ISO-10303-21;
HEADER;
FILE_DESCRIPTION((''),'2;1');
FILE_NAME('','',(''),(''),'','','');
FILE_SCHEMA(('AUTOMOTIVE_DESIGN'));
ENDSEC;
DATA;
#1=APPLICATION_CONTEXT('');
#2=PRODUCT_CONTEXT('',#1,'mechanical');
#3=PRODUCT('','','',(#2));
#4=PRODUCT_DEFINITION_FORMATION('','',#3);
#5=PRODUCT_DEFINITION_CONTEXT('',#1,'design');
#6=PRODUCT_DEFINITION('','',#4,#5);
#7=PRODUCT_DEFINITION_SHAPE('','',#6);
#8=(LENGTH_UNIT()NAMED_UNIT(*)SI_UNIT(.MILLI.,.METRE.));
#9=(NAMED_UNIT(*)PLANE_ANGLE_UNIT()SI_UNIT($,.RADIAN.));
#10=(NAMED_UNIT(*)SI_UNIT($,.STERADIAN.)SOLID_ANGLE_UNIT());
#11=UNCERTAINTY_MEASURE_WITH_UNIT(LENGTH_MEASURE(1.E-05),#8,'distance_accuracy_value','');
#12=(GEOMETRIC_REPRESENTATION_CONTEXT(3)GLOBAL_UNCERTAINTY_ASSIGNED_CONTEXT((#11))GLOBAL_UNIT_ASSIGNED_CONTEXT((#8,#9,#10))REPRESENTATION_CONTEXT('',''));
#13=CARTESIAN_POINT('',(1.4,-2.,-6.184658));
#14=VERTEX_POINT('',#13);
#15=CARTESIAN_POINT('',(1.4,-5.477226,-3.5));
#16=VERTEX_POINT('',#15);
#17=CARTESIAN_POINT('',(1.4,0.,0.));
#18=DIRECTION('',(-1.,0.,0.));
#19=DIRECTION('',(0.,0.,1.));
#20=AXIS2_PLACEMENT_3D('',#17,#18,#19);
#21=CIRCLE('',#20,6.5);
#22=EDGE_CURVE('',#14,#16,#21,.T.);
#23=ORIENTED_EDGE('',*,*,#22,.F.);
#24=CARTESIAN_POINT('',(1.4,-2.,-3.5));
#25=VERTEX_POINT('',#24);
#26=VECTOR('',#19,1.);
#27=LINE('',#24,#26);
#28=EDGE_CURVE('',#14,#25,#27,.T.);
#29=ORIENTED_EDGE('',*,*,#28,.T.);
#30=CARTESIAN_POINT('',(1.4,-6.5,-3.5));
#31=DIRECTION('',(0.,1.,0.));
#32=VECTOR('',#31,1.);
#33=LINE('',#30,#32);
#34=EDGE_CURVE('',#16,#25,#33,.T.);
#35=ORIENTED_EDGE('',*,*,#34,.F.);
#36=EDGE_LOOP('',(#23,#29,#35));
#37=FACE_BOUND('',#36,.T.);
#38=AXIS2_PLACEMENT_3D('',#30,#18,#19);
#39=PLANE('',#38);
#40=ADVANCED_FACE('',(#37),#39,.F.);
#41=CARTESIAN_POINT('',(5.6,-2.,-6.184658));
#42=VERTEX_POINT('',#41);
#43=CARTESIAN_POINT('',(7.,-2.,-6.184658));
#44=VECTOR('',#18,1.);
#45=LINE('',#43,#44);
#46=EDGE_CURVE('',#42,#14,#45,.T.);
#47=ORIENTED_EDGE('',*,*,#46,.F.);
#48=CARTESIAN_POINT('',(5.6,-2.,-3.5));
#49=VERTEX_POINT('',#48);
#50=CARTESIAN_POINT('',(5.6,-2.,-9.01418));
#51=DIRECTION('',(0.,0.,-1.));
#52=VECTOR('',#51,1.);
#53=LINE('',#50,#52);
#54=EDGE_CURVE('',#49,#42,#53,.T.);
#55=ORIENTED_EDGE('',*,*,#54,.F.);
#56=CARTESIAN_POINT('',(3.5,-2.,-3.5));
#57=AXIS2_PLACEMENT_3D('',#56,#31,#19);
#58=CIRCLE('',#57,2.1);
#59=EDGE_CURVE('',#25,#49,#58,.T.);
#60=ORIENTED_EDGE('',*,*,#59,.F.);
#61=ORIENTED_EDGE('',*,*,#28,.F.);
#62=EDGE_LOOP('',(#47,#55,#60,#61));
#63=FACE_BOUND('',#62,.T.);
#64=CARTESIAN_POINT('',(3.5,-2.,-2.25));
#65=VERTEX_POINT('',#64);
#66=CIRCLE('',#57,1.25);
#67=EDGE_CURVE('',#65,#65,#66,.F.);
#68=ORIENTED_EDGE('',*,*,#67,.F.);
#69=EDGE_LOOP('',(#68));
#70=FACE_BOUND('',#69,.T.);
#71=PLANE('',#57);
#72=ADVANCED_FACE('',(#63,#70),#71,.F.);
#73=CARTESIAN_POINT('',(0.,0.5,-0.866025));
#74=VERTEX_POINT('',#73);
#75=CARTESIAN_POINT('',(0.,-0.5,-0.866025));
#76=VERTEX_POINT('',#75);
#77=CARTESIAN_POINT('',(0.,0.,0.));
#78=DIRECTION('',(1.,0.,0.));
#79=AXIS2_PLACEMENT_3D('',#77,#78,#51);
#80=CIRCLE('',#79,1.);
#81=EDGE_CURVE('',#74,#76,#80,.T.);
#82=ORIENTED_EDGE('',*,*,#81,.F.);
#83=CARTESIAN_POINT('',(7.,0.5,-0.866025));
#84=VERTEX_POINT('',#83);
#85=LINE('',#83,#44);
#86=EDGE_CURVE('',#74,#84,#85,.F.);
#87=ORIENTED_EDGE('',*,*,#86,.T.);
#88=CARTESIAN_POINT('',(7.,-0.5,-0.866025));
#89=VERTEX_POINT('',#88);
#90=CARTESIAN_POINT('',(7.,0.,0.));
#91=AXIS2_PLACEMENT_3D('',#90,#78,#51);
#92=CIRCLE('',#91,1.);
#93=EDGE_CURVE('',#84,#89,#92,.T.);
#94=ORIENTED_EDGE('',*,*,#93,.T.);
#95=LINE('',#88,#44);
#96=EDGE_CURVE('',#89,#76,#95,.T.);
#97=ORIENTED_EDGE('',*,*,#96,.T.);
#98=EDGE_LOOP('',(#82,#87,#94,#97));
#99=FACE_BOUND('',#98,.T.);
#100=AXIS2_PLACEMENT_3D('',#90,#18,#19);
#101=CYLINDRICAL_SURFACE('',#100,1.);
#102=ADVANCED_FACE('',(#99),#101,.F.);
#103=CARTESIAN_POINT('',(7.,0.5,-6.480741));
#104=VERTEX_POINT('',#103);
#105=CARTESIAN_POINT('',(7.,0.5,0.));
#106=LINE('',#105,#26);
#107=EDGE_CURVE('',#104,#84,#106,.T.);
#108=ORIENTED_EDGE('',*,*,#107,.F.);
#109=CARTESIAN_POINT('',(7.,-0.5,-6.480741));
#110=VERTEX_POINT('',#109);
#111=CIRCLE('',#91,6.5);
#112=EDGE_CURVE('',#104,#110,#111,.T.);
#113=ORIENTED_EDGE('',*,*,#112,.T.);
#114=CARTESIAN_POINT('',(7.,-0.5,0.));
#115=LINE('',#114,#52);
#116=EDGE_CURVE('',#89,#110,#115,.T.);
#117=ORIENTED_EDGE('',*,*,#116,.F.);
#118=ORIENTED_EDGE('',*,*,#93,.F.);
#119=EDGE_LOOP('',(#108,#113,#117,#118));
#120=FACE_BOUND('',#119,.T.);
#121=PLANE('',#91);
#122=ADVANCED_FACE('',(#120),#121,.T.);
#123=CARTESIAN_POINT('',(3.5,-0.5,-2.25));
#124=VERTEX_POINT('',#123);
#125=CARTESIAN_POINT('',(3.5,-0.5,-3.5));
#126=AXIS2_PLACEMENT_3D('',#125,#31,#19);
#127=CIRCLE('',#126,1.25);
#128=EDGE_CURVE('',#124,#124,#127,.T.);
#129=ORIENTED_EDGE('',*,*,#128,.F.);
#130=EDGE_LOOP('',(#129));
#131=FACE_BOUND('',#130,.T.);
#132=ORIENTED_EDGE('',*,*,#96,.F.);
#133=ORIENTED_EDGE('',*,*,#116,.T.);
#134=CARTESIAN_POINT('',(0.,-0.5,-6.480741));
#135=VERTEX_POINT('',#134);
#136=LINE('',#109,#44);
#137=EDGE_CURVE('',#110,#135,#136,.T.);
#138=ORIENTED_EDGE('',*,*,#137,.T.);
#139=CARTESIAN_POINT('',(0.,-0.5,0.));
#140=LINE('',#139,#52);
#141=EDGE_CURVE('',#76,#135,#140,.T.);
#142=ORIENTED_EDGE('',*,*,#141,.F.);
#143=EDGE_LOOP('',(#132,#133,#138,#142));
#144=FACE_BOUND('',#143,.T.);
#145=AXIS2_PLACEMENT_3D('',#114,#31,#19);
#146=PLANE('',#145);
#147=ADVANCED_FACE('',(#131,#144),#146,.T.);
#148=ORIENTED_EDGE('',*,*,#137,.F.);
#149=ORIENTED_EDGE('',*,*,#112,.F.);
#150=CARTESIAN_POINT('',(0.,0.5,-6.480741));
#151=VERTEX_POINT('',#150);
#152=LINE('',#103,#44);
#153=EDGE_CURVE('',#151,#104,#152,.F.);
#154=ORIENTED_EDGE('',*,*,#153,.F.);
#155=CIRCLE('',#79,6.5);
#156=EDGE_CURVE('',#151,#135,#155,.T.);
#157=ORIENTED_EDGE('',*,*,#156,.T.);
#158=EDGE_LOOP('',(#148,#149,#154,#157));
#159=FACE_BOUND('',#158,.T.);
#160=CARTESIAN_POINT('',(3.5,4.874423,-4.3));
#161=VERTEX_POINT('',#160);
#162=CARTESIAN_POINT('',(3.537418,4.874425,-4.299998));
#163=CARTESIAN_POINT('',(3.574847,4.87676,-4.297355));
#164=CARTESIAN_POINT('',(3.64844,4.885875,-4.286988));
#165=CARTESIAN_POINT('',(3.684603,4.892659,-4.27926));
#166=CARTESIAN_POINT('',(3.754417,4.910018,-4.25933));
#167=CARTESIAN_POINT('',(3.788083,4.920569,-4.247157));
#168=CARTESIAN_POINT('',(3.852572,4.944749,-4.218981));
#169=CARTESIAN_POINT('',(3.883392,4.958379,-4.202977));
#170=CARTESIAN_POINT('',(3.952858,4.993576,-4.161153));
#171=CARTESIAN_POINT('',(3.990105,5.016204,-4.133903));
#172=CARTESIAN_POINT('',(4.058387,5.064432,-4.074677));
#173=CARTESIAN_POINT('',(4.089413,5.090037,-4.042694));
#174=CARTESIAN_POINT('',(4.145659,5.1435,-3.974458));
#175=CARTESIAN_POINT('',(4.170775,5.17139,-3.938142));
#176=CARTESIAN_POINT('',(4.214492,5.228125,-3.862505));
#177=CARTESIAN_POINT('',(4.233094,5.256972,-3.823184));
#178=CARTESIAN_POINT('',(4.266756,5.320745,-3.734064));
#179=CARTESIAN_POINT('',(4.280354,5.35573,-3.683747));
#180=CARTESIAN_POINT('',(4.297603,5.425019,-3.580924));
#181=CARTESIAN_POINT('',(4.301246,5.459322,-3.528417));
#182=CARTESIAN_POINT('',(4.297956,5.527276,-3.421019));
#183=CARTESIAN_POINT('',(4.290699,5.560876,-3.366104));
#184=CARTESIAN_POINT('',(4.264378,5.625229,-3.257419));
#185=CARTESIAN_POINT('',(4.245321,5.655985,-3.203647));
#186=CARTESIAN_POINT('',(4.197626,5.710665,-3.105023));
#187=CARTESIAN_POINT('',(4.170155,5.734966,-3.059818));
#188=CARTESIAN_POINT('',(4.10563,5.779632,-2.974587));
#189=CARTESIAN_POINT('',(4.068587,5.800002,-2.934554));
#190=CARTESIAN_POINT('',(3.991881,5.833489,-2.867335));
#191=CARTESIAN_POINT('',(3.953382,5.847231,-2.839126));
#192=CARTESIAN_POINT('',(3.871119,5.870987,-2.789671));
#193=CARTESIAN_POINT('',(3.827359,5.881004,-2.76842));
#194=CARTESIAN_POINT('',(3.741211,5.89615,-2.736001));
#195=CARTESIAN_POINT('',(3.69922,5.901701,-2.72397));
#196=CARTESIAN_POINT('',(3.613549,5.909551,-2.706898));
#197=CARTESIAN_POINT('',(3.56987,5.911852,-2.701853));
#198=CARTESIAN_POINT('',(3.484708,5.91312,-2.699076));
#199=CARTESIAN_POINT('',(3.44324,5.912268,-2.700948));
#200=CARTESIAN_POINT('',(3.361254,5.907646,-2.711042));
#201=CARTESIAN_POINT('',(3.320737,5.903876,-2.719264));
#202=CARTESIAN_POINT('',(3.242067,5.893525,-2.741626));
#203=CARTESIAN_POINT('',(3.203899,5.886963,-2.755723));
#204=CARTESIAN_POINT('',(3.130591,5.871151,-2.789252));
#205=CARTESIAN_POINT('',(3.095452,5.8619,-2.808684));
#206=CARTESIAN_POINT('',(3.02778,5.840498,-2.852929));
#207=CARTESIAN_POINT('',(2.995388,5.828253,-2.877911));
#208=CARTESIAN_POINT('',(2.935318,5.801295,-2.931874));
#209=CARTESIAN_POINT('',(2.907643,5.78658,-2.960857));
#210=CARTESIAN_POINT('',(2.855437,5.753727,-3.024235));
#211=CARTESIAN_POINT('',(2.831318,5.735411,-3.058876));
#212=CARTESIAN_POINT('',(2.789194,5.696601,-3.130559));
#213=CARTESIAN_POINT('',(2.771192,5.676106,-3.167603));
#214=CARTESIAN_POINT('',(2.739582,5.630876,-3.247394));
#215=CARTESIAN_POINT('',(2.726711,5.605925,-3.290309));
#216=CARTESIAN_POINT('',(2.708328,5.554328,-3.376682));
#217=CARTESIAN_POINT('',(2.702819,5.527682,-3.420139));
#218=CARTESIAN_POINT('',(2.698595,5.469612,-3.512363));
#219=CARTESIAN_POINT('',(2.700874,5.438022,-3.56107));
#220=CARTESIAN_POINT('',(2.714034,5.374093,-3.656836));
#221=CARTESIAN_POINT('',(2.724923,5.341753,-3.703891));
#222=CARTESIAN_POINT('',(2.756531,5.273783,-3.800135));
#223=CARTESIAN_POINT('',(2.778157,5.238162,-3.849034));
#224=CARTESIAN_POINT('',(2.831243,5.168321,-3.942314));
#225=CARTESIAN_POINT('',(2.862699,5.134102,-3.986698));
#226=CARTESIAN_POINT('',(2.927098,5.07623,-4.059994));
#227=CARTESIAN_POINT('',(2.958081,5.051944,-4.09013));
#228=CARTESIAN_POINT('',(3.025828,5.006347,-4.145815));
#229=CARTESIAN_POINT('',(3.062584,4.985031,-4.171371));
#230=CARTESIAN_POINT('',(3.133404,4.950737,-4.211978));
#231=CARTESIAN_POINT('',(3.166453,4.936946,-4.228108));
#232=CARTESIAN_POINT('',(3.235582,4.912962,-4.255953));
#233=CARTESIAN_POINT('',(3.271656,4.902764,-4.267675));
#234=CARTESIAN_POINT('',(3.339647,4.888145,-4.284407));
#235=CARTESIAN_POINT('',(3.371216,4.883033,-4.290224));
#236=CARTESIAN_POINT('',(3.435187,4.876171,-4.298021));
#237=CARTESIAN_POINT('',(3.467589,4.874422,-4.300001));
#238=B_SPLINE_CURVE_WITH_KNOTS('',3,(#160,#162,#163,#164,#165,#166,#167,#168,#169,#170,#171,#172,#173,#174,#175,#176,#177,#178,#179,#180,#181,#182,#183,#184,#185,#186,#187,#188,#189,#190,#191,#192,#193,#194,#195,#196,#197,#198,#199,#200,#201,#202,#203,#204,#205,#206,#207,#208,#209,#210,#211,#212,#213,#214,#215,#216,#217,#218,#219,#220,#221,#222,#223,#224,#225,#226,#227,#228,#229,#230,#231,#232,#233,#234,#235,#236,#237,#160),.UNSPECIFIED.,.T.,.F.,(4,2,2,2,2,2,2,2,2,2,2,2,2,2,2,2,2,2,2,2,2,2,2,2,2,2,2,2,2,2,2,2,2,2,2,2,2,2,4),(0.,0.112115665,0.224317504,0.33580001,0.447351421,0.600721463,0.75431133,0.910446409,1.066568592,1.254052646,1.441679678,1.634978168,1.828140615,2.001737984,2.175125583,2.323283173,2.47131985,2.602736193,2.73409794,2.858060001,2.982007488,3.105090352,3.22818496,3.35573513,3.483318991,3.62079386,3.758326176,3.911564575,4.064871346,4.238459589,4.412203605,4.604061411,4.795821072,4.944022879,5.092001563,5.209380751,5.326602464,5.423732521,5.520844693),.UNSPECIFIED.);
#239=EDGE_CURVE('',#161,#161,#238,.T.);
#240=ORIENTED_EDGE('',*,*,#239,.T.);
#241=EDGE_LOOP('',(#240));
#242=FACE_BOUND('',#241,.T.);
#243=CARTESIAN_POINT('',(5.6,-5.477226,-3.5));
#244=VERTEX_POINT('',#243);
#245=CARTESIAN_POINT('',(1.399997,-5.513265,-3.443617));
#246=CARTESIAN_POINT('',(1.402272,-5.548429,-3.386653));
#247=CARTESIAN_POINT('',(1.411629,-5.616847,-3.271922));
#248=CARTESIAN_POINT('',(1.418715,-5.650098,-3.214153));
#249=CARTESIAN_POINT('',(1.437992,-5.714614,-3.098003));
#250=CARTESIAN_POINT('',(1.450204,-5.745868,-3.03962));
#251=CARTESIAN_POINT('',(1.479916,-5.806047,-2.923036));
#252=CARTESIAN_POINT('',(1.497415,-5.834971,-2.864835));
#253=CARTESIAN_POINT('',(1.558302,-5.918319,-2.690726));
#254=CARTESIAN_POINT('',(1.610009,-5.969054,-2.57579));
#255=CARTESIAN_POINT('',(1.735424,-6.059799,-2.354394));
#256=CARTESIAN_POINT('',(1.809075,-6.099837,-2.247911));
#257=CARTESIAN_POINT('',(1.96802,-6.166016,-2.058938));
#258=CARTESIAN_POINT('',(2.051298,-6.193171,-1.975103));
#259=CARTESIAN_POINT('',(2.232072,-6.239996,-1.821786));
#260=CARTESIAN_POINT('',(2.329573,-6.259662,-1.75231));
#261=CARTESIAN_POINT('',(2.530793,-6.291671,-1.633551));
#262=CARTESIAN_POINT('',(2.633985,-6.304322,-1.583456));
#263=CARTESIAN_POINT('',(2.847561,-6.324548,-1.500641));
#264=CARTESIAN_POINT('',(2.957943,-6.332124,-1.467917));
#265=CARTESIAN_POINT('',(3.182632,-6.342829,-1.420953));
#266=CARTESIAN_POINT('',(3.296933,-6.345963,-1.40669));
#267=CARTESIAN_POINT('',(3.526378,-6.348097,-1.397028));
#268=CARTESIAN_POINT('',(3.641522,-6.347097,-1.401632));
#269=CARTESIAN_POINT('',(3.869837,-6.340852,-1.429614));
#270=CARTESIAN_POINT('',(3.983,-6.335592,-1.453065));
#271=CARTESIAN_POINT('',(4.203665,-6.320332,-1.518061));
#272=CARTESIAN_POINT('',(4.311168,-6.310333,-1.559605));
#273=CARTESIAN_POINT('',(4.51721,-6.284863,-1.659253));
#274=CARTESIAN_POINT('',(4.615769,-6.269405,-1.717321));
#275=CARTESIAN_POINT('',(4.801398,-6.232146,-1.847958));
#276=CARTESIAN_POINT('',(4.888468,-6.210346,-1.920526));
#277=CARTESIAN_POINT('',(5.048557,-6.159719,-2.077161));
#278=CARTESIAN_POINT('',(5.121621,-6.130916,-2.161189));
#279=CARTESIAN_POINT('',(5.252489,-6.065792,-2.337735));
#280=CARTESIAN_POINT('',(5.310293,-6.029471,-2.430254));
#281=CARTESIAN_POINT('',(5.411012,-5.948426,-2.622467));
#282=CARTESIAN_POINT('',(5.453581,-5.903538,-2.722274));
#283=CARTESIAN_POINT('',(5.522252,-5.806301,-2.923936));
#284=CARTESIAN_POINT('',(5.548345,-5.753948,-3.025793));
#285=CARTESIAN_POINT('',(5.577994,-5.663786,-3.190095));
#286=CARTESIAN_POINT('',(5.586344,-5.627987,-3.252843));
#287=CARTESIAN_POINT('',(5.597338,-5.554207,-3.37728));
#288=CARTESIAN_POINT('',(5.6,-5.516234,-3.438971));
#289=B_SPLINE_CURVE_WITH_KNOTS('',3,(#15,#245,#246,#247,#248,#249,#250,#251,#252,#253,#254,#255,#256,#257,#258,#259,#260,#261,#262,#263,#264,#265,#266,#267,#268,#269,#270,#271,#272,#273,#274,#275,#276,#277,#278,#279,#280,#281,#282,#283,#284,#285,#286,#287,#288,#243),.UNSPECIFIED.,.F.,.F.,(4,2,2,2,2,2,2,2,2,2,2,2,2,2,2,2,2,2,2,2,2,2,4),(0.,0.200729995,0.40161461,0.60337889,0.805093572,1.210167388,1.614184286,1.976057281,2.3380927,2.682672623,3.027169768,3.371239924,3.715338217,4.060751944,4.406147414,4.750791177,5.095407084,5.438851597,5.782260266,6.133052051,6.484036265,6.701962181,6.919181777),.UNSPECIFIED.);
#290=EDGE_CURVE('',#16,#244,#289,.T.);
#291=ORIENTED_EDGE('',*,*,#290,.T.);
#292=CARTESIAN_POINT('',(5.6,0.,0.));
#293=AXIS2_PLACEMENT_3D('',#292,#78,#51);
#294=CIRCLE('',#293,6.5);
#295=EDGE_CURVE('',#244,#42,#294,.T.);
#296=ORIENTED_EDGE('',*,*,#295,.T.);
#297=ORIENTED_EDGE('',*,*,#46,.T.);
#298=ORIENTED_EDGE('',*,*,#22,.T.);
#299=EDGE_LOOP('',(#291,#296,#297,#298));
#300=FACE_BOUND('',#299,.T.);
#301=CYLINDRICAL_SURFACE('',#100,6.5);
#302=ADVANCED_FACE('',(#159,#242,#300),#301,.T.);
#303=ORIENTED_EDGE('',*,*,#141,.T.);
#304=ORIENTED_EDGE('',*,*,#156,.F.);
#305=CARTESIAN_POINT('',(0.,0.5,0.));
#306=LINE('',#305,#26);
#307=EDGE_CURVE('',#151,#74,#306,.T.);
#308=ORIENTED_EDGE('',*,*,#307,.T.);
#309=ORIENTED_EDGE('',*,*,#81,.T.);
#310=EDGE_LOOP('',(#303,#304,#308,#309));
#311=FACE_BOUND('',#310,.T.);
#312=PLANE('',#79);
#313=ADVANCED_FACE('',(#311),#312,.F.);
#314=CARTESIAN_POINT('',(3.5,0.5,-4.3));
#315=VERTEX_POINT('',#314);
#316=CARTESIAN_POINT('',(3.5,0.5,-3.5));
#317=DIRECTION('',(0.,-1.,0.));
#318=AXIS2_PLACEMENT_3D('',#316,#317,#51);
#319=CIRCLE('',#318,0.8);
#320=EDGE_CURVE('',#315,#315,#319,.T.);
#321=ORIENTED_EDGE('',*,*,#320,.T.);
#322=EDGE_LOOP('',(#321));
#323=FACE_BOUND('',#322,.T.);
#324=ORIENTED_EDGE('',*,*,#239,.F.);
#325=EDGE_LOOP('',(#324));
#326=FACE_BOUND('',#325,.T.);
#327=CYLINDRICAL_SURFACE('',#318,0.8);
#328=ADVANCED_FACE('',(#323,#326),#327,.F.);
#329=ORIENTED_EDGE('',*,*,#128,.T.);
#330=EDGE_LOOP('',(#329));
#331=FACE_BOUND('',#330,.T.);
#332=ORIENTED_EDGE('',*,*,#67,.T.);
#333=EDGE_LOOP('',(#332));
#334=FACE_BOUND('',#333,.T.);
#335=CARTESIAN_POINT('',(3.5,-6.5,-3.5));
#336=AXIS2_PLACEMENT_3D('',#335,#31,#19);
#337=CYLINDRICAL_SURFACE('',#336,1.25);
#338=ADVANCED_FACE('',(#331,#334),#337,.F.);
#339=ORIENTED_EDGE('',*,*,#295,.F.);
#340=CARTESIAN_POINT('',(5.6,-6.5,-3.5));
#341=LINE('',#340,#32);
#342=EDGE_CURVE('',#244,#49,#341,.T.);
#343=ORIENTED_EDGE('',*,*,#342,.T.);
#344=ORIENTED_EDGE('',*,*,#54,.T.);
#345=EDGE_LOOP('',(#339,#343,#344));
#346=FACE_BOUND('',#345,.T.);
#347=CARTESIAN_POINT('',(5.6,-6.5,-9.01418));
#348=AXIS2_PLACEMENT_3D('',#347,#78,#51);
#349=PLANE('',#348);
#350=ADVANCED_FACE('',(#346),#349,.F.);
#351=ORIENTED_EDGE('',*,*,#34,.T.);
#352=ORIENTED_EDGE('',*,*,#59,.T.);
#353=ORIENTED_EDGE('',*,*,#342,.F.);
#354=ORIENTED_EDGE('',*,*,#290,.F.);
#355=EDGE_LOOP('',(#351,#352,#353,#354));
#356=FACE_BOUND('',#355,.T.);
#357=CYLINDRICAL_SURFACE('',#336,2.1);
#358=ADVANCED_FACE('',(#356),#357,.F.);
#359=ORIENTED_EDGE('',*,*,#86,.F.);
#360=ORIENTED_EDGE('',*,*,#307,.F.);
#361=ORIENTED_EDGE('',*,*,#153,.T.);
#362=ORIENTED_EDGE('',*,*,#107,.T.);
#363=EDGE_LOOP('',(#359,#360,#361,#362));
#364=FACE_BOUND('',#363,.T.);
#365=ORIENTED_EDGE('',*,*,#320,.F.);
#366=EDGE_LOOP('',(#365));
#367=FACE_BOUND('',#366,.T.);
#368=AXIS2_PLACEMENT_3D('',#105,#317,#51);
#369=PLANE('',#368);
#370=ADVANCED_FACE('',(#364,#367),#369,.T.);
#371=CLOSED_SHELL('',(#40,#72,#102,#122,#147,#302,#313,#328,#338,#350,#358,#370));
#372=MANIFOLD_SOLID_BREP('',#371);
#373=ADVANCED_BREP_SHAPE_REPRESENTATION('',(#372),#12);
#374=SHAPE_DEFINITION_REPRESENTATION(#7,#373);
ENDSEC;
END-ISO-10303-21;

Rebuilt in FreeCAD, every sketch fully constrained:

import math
import FreeCAD as App
import Part
import Sketcher

doc = App.newDocument("Part")
body = doc.addObject("PartDesign::Body", "Body")

# Sketch on YZ plane
sketch1 = doc.addObject("Sketcher::SketchObject", "Sketch")
body.addObject(sketch1)
sketch1.AttachmentSupport = (doc.YZ_Plane, [""])
sketch1.MapMode = "FlatFace"
sketch1.addGeometry([
    Part.Circle(App.Vector(0, 0, 0), App.Vector(0, 0, 1), 6.5),
    Part.Circle(App.Vector(0, 0, 0), App.Vector(0, 0, 1), 1),
], False)
sketch1.addConstraint([
    Sketcher.Constraint("Coincident", 0, 3, -1, 1),
    Sketcher.Constraint("Coincident", 1, 3, -1, 1),
    Sketcher.Constraint("Diameter", 0, 13.0),
    Sketcher.Constraint("Diameter", 1, 2.0),
])
pad1 = doc.addObject("PartDesign::Pad", "Pad")
body.addObject(pad1)
pad1.Profile = sketch1
pad1.Length = 7

# Sketch on YZ plane
sketch2 = doc.addObject("Sketcher::SketchObject", "Sketch001")
body.addObject(sketch2)
sketch2.AttachmentSupport = (doc.YZ_Plane, [""])
sketch2.MapMode = "FlatFace"
sketch2.addGeometry([
    Part.LineSegment(App.Vector(0.5, 0, 0), App.Vector(-0.5, 0, 0)),
    Part.LineSegment(App.Vector(-0.5, 0, 0), App.Vector(-0.5, -6.5, 0)),
    Part.LineSegment(App.Vector(-0.5, -6.5, 0), App.Vector(0.5, -6.5, 0)),
    Part.LineSegment(App.Vector(0.5, -6.5, 0), App.Vector(0.5, 0, 0)),
], False)
sketch2.addConstraint([
    Sketcher.Constraint("Coincident", 0, 2, 1, 1),
    Sketcher.Constraint("Coincident", 1, 2, 2, 1),
    Sketcher.Constraint("Coincident", 2, 2, 3, 1),
    Sketcher.Constraint("Coincident", 3, 2, 0, 1),
    Sketcher.Constraint("Horizontal", 0),
    Sketcher.Constraint("Vertical", 1),
    Sketcher.Constraint("Horizontal", 2),
    Sketcher.Constraint("Vertical", 3),
    Sketcher.Constraint("Symmetric", 0, 2, 3, 2, -1, 1),
    Sketcher.Constraint("DistanceX", 0, 2, 0, 1, 1.0),
    Sketcher.Constraint("DistanceY", 1, 2, 1, 1, 6.525566),
])
pocket1 = doc.addObject("PartDesign::Pocket", "Pocket")
body.addObject(pocket1)
pocket1.Profile = sketch2
pocket1.Type = "ThroughAll"
pocket1.Reversed = True

# Sketch on XZ plane
sketch3 = doc.addObject("Sketcher::SketchObject", "Sketch002")
body.addObject(sketch3)
sketch3.AttachmentSupport = (doc.XZ_Plane, [""])
sketch3.MapMode = "FlatFace"
sketch3.addGeometry(Part.Circle(App.Vector(3.5, -3.5, 0), App.Vector(0, 0, 1), 1.2), False)
sketch3.addConstraint([
    Sketcher.Constraint("Diameter", 0, 2.5),
    Sketcher.Constraint("DistanceX", -1, 1, 0, 3, 3.5),
    Sketcher.Constraint("DistanceY", 0, 3, -1, 1, 3.5),
])
pocket2 = doc.addObject("PartDesign::Pocket", "Pocket001")
body.addObject(pocket2)
pocket2.Profile = sketch3
pocket2.Type = "ThroughAll"
pocket2.Reversed = True

# Sketch on XZ plane
sketch4 = doc.addObject("Sketcher::SketchObject", "Sketch003")
body.addObject(sketch4)
sketch4.AttachmentSupport = (doc.XZ_Plane, [""])
sketch4.MapMode = "FlatFace"
sketch4.AttachmentOffset = App.Placement(App.Vector(0, 0, 2), App.Rotation())
sketch4.addGeometry([
    Part.LineSegment(App.Vector(1.4, -9, 0), App.Vector(1.4, -3.5, 0)),
    Part.ArcOfCircle(Part.Circle(App.Vector(3.5, -3.5, 0), App.Vector(0, 0, 1), 2.1), math.radians(0), math.radians(180)),
    Part.LineSegment(App.Vector(5.6, -3.5, 0), App.Vector(5.6, -9, 0)),
    Part.LineSegment(App.Vector(5.6, -9, 0), App.Vector(1.4, -9, 0)),
], False)
sketch4.addConstraint([
    Sketcher.Constraint("Tangent", 0, 2, 1, 2),
    Sketcher.Constraint("Tangent", 1, 1, 2, 1),
    Sketcher.Constraint("Coincident", 2, 2, 3, 1),
    Sketcher.Constraint("Coincident", 3, 2, 0, 1),
    Sketcher.Constraint("Vertical", 0),
    Sketcher.Constraint("Vertical", 2),
    Sketcher.Constraint("Horizontal", 3),
    Sketcher.Constraint("Radius", 1, 2.1),
    Sketcher.Constraint("DistanceX", -1, 1, 1, 3, 3.5),
    Sketcher.Constraint("DistanceY", 1, 3, -1, 1, 3.5),
    Sketcher.Constraint("DistanceY", 0, 1, 0, 2, 5.51418),
])
pocket3 = doc.addObject("PartDesign::Pocket", "Pocket002")
body.addObject(pocket3)
pocket3.Profile = sketch4
pocket3.Type = "ThroughAll"
pocket3.Reversed = True

# Sketch on XZ plane
sketch5 = doc.addObject("Sketcher::SketchObject", "Sketch004")
body.addObject(sketch5)
sketch5.AttachmentSupport = (doc.XZ_Plane, [""])
sketch5.MapMode = "FlatFace"
sketch5.AttachmentOffset = App.Placement(App.Vector(0, 0, -0.5), App.Rotation())
sketch5.addGeometry(Part.Circle(App.Vector(3.5, -3.5, 0), App.Vector(0, 0, 1), 0.8), False)
sketch5.addConstraint([
    Sketcher.Constraint("Diameter", 0, 1.6),
    Sketcher.Constraint("DistanceX", -1, 1, 0, 3, 3.5),
    Sketcher.Constraint("DistanceY", 0, 3, -1, 1, 3.5),
])
doc.recompute()
hole = doc.addObject("PartDesign::Hole", "Hole")
body.addObject(hole)
hole.Profile = sketch5
hole.ThreadType = "None"
hole.Diameter = 1.6
hole.DepthType = "ThroughAll"

doc.recompute()
